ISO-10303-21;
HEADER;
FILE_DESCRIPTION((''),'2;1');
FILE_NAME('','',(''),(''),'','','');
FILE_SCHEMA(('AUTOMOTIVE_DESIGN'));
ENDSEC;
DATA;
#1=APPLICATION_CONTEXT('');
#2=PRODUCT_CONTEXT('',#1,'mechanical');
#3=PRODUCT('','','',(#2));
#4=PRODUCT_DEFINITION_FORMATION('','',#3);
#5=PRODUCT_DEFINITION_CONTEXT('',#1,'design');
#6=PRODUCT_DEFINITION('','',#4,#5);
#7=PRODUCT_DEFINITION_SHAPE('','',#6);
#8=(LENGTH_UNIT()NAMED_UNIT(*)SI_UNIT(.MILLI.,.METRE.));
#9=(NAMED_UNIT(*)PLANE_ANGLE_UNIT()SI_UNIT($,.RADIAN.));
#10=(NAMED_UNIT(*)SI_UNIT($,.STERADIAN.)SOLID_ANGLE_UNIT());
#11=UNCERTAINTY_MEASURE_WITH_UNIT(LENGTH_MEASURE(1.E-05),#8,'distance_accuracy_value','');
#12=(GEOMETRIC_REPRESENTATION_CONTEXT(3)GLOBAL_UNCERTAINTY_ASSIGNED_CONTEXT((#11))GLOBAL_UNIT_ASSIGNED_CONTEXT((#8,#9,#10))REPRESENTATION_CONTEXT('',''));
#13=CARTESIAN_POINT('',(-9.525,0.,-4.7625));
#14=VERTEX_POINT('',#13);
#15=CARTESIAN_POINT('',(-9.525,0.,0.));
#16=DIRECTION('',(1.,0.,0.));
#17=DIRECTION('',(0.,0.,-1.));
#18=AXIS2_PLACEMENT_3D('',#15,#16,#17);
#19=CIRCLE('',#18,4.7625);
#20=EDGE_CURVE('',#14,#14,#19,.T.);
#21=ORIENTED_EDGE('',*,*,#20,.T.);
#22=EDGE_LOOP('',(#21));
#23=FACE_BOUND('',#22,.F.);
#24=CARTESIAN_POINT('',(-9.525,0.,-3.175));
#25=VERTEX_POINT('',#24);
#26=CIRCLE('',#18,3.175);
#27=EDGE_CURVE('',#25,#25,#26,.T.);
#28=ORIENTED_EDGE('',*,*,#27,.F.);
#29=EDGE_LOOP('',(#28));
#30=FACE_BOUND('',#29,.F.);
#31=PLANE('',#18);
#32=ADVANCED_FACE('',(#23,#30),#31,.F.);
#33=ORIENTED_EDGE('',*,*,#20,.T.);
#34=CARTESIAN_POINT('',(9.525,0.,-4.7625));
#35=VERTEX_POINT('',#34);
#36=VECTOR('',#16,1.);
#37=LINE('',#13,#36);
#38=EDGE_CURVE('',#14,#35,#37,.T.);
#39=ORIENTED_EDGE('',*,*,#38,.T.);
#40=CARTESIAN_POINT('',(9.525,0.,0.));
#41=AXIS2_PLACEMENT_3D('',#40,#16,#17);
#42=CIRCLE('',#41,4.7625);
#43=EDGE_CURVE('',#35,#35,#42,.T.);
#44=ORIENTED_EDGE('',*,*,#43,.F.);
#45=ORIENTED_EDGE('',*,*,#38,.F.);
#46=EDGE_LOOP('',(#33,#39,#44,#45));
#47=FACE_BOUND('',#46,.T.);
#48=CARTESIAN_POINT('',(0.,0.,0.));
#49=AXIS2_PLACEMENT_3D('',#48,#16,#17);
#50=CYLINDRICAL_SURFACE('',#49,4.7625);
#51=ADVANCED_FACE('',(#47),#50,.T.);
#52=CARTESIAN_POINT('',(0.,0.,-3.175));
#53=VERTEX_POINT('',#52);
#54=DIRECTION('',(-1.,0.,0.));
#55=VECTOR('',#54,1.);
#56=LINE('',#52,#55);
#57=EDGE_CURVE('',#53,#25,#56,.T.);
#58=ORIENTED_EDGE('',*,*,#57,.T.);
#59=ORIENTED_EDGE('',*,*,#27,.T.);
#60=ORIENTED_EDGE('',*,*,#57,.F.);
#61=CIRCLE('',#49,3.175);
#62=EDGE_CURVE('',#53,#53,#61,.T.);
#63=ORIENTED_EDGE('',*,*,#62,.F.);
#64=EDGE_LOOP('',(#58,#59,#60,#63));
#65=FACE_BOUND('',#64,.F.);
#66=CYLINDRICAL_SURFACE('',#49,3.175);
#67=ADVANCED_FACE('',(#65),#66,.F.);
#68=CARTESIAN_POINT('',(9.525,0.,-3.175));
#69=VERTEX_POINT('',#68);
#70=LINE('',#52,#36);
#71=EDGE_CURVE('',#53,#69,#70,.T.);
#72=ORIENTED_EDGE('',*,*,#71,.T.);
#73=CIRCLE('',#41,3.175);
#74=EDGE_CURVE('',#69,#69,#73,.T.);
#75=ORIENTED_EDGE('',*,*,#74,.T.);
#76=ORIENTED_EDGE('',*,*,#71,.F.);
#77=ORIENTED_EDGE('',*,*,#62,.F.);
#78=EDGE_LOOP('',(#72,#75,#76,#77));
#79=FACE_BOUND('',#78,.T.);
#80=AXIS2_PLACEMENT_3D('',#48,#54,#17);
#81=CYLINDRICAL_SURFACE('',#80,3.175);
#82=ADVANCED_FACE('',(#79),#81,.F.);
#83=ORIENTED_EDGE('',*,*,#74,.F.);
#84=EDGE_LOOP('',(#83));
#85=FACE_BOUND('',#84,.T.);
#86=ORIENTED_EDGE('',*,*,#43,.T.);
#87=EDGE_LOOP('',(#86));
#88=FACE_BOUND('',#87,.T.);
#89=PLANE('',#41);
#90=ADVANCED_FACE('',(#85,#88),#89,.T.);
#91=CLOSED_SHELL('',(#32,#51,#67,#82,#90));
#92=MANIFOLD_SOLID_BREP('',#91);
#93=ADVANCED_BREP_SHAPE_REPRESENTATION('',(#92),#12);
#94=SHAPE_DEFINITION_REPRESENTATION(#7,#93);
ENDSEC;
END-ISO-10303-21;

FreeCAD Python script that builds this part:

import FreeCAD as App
import Part
import Sketcher
Q = App.Units.Quantity

doc = App.newDocument("Part")
body = doc.addObject("PartDesign::Body", "Body")

sketch1 = doc.addObject("Sketcher::SketchObject", "Sketch")
body.addObject(sketch1)
sketch1.AttachmentSupport = (doc.YZ_Plane, [""])
sketch1.MapMode = "FlatFace"
sketch1.addGeometry([
    Part.Circle(App.Vector(0, 0, 0), App.Vector(0, 0, 1), 4.8),
    Part.Circle(App.Vector(0, 0, 0), App.Vector(0, 0, 1), 3.2),
], False)
sketch1.addConstraint([
    Sketcher.Constraint("Coincident", 0, 3, -1, 1),
    Sketcher.Constraint("Coincident", 1, 3, -1, 1),
    Sketcher.Constraint("Diameter", 1, Q("0.25 in")),
    Sketcher.Constraint("Diameter", 0, Q("0.375 in")),
])
pad1 = doc.addObject("PartDesign::Pad", "Pad")
body.addObject(pad1)
pad1.Profile = sketch1
pad1.Type = "TwoLengths"
pad1.Length = Q("0.375 in")
pad1.Length2 = Q("0.375 in")

doc.recompute()
